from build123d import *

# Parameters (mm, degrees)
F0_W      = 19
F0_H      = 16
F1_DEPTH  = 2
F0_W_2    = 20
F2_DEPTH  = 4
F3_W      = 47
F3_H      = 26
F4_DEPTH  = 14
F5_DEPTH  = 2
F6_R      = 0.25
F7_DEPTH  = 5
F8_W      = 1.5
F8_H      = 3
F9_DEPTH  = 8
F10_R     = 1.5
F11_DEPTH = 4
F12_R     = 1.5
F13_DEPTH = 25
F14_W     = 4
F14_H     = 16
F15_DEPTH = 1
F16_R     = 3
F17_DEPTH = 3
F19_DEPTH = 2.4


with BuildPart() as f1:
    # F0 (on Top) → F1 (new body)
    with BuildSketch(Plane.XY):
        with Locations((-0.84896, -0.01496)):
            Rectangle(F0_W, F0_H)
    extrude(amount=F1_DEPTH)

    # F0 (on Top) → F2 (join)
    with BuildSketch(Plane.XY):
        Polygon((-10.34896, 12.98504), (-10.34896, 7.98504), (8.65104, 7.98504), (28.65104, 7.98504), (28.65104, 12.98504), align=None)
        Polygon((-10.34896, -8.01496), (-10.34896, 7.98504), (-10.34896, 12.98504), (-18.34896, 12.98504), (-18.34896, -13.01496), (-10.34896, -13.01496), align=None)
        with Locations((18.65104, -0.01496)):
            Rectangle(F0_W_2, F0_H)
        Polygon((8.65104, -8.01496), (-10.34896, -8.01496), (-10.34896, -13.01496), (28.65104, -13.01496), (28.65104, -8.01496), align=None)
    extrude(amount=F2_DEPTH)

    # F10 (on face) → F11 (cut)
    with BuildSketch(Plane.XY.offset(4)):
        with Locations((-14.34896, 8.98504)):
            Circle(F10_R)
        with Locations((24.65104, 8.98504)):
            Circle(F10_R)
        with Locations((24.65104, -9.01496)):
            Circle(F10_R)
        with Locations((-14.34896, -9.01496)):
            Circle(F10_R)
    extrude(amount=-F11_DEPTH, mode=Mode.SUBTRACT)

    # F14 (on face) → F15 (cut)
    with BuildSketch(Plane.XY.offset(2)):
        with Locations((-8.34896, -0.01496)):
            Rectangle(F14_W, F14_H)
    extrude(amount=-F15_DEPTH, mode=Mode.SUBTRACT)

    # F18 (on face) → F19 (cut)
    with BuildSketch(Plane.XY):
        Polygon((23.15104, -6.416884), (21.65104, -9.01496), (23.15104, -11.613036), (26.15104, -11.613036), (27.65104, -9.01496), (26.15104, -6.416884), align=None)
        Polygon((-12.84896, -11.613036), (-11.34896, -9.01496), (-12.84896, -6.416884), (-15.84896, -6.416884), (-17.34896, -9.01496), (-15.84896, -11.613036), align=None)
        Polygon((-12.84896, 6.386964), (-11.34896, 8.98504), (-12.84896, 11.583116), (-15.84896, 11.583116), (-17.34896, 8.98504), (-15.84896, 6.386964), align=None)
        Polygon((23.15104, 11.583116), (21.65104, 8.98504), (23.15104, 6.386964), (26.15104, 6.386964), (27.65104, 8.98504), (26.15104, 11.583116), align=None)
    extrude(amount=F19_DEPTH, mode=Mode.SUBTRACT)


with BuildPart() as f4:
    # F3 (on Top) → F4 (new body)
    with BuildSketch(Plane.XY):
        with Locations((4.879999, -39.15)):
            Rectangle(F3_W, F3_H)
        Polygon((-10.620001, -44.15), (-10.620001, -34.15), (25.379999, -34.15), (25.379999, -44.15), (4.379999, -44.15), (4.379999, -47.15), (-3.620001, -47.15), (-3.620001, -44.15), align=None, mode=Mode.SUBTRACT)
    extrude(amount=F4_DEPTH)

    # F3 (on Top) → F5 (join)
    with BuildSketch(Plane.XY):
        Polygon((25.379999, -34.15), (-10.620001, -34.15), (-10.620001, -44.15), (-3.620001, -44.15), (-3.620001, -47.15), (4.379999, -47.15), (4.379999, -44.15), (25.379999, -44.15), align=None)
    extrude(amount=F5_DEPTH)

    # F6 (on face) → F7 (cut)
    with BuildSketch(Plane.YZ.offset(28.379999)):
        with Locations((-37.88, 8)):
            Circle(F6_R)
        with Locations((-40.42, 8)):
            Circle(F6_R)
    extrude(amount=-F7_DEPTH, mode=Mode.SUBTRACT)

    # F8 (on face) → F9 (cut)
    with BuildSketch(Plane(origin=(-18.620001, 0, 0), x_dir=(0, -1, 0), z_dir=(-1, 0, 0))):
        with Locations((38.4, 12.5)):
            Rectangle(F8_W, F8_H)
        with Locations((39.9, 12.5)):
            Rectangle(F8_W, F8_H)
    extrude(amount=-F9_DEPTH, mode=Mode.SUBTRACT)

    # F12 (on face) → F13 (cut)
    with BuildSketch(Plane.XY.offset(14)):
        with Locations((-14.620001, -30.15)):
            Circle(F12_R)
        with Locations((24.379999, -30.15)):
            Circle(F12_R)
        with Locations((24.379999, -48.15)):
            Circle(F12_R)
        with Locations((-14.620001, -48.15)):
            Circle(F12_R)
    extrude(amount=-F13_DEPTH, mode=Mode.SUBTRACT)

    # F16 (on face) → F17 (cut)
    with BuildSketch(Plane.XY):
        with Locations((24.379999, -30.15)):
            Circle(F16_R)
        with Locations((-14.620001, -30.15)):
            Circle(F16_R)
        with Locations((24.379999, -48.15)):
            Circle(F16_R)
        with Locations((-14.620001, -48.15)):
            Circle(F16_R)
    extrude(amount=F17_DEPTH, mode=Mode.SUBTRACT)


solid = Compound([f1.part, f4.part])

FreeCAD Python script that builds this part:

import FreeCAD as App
import Part
import Sketcher
from FreeCAD import Vector
Q = App.Units.Quantity

doc = App.newDocument("Part")
body = doc.addObject("PartDesign::Body", "Body")

# Sketch on XY plane
sketch1 = body.newObject("Sketcher::SketchObject", "Sketch")
sketch1.AttachmentSupport = (doc.getObject("XY_Plane"), [""])
sketch1.MapMode = "FlatFace"
sketch1.addGeometry(Part.LineSegment(Vector(-10, 8, 0), Vector(-10, -8, 0)), False)
sketch1.addGeometry(Part.LineSegment(Vector(-10, -8, 0), Vector(9, -8, 0)), False)
sketch1.addGeometry(Part.LineSegment(Vector(9, -8, 0), Vector(9, 8, 0)), False)
sketch1.addGeometry(Part.LineSegment(Vector(9, 8, 0), Vector(-10, 8, 0)), False)
sketch1.addConstraint(Sketcher.Constraint("Coincident", 0, 2, 1, 1))
sketch1.addConstraint(Sketcher.Constraint("Coincident", 1, 2, 2, 1))
sketch1.addConstraint(Sketcher.Constraint("Coincident", 2, 2, 3, 1))
sketch1.addConstraint(Sketcher.Constraint("Coincident", 3, 2, 0, 1))
sketch1.addConstraint(Sketcher.Constraint("Vertical", 0))
sketch1.addConstraint(Sketcher.Constraint("Horizontal", 1))
sketch1.addConstraint(Sketcher.Constraint("Vertical", 2))
sketch1.addConstraint(Sketcher.Constraint("Horizontal", 3))
sketch1.addConstraint(Sketcher.Constraint("DistanceX", 1, 1, 1, 2, 19.0))
sketch1.addConstraint(Sketcher.Constraint("DistanceY", 0, 2, 0, 1, 16.0))
sketch1.addConstraint(Sketcher.Constraint("DistanceX", 0, 2, -1, 1, 10.34896))
sketch1.addConstraint(Sketcher.Constraint("DistanceY", 0, 2, -1, 1, 8.01496))
pad1 = body.newObject("PartDesign::Pad", "Pad")
pad1.Profile = sketch1
pad1.Length = 2

# Sketch on XY plane
sketch2 = body.newObject("Sketcher::SketchObject", "Sketch001")
sketch2.AttachmentSupport = (doc.getObject("XY_Plane"), [""])
sketch2.MapMode = "FlatFace"
sketch2.addGeometry(Part.LineSegment(Vector(29, 13, 0), Vector(-18, 13, 0)), False)
sketch2.addGeometry(Part.LineSegment(Vector(-18, 13, 0), Vector(-18, -13, 0)), False)
sketch2.addGeometry(Part.LineSegment(Vector(-18, -13, 0), Vector(29, -13, 0)), False)
sketch2.addGeometry(Part.LineSegment(Vector(29, -13, 0), Vector(29, 13, 0)), False)
sketch2.addGeometry(Part.LineSegment(Vector(-10, 8, 0), Vector(9, 8, 0)), False)
sketch2.addGeometry(Part.LineSegment(Vector(9, 8, 0), Vector(9, -8, 0)), False)
sketch2.addGeometry(Part.LineSegment(Vector(9, -8, 0), Vector(-10, -8, 0)), False)
sketch2.addGeometry(Part.LineSegment(Vector(-10, -8, 0), Vector(-10, 8, 0)), False)
sketch2.addConstraint(Sketcher.Constraint("Coincident", 0, 2, 1, 1))
sketch2.addConstraint(Sketcher.Constraint("Coincident", 1, 2, 2, 1))
sketch2.addConstraint(Sketcher.Constraint("Coincident", 2, 2, 3, 1))
sketch2.addConstraint(Sketcher.Constraint("Coincident", 3, 2, 0, 1))
sketch2.addConstraint(Sketcher.Constraint("Coincident", 4, 2, 5, 1))
sketch2.addConstraint(Sketcher.Constraint("Coincident", 5, 2, 6, 1))
sketch2.addConstraint(Sketcher.Constraint("Coincident", 6, 2, 7, 1))
sketch2.addConstraint(Sketcher.Constraint("Coincident", 7, 2, 4, 1))
sketch2.addConstraint(Sketcher.Constraint("Horizontal", 0))
sketch2.addConstraint(Sketcher.Constraint("Vertical", 1))
sketch2.addConstraint(Sketcher.Constraint("Horizontal", 2))
sketch2.addConstraint(Sketcher.Constraint("Vertical", 3))
sketch2.addConstraint(Sketcher.Constraint("Horizontal", 4))
sketch2.addConstraint(Sketcher.Constraint("Vertical", 5))
sketch2.addConstraint(Sketcher.Constraint("Horizontal", 6))
sketch2.addConstraint(Sketcher.Constraint("Vertical", 7))
sketch2.addConstraint(Sketcher.Constraint("DistanceX", 0, 2, 0, 1, 47.0))
sketch2.addConstraint(Sketcher.Constraint("DistanceX", 4, 1, 4, 2, 19.0))
sketch2.addConstraint(Sketcher.Constraint("DistanceY", 1, 2, 1, 1, 26.0))
sketch2.addConstraint(Sketcher.Constraint("DistanceY", 5, 2, 5, 1, 16.0))
sketch2.addConstraint(Sketcher.Constraint("DistanceX", 4, 2, 3, 2, 20.0))
sketch2.addConstraint(Sketcher.Constraint("DistanceY", 4, 2, 3, 2, 5.0))
sketch2.addConstraint(Sketcher.Constraint("DistanceX", 0, 2, -1, 1, 18.34896))
sketch2.addConstraint(Sketcher.Constraint("DistanceY", -1, 1, 0, 2, 12.98504))
pad2 = body.newObject("PartDesign::Pad", "Pad001")
pad2.Profile = sketch2
pad2.Length = 4

# Sketch on XY plane
sketch3 = body.newObject("Sketcher::SketchObject", "Sketch002")
sketch3.AttachmentSupport = (doc.getObject("XY_Plane"), [""])
sketch3.MapMode = "FlatFace"
sketch3.AttachmentOffset = App.Placement(Vector(0, 0, 4), App.Rotation())
sketch3.addGeometry(Part.Circle(Vector(-14.3, 9, 0), Vector(0, 0, 1), 1.5), False)
sketch3.addGeometry(Part.Circle(Vector(24.7, 9, 0), Vector(0, 0, 1), 1.5), False)
sketch3.addGeometry(Part.Circle(Vector(24.7, -9, 0), Vector(0, 0, 1), 1.5), False)
sketch3.addGeometry(Part.Circle(Vector(-14.3, -9, 0), Vector(0, 0, 1), 1.5), False)
sketch3.addConstraint(Sketcher.Constraint("Equal", 0, 1))
sketch3.addConstraint(Sketcher.Constraint("Equal", 1, 2))
sketch3.addConstraint(Sketcher.Constraint("Equal", 2, 3))
sketch3.addConstraint(Sketcher.Constraint("Horizontal", 0, 3, 1, 3))
sketch3.addConstraint(Sketcher.Constraint("Horizontal", 2, 3, 3, 3))
sketch3.addConstraint(Sketcher.Constraint("Vertical", 1, 3, 2, 3))
sketch3.addConstraint(Sketcher.Constraint("Vertical", 0, 3, 3, 3))
sketch3.addConstraint(Sketcher.Constraint("Diameter", 0, 3.0))
sketch3.addConstraint(Sketcher.Constraint("DistanceX", 0, 3, 1, 3, 39.0))
sketch3.addConstraint(Sketcher.Constraint("DistanceY", 2, 3, 1, 3, 18.0))
sketch3.addConstraint(Sketcher.Constraint("DistanceX", 0, 3, -1, 1, 14.34896))
sketch3.addConstraint(Sketcher.Constraint("DistanceY", -1, 1, 0, 3, 8.98504))
pocket1 = body.newObject("PartDesign::Pocket", "Pocket")
pocket1.Profile = sketch3
pocket1.Length = 4

# Sketch on XY plane
sketch4 = body.newObject("Sketcher::SketchObject", "Sketch003")
sketch4.AttachmentSupport = (doc.getObject("XY_Plane"), [""])
sketch4.MapMode = "FlatFace"
sketch4.AttachmentOffset = App.Placement(Vector(0, 0, 2), App.Rotation())
sketch4.addGeometry(Part.LineSegment(Vector(-10.3, 8, 0), Vector(-10.3, -8, 0)), False)
sketch4.addGeometry(Part.LineSegment(Vector(-10.3, -8, 0), Vector(-6.3, -8, 0)), False)
sketch4.addGeometry(Part.LineSegment(Vector(-6.3, -8, 0), Vector(-6.3, 8, 0)), False)
sketch4.addGeometry(Part.LineSegment(Vector(-6.3, 8, 0), Vector(-10.3, 8, 0)), False)
sketch4.addConstraint(Sketcher.Constraint("Coincident", 0, 2, 1, 1))
sketch4.addConstraint(Sketcher.Constraint("Coincident", 1, 2, 2, 1))
sketch4.addConstraint(Sketcher.Constraint("Coincident", 2, 2, 3, 1))
sketch4.addConstraint(Sketcher.Constraint("Coincident", 3, 2, 0, 1))
sketch4.addConstraint(Sketcher.Constraint("Vertical", 0))
sketch4.addConstraint(Sketcher.Constraint("Horizontal", 1))
sketch4.addConstraint(Sketcher.Constraint("Vertical", 2))
sketch4.addConstraint(Sketcher.Constraint("Horizontal", 3))
sketch4.addConstraint(Sketcher.Constraint("DistanceX", 1, 1, 1, 2, 4.0))
sketch4.addConstraint(Sketcher.Constraint("DistanceY", 0, 2, 0, 1, 16.0))
sketch4.addConstraint(Sketcher.Constraint("DistanceX", 0, 2, -1, 1, 10.34896))
sketch4.addConstraint(Sketcher.Constraint("DistanceY", 0, 2, -1, 1, 8.01496))
pocket2 = body.newObject("PartDesign::Pocket", "Pocket001")
pocket2.Profile = sketch4
pocket2.Length = 1

# Sketch on XY plane
sketch5 = body.newObject("Sketcher::SketchObject", "Sketch004")
sketch5.AttachmentSupport = (doc.getObject("XY_Plane"), [""])
sketch5.MapMode = "FlatFace"
sketch5.addGeometry(Part.LineSegment(Vector(23.2, -6.4, 0), Vector(21.7, -9, 0)), False)
sketch5.addGeometry(Part.LineSegment(Vector(21.7, -9, 0), Vector(23.2, -11.6, 0)), False)
sketch5.addGeometry(Part.LineSegment(Vector(23.2, -11.6, 0), Vector(26.2, -11.6, 0)), False)
sketch5.addGeometry(Part.LineSegment(Vector(26.2, -11.6, 0), Vector(27.7, -9, 0)), False)
sketch5.addGeometry(Part.LineSegment(Vector(27.7, -9, 0), Vector(26.2, -6.4, 0)), False)
sketch5.addGeometry(Part.LineSegment(Vector(26.2, -6.4, 0), Vector(23.2, -6.4, 0)), False)
sketch5.addGeometry(Part.LineSegment(Vector(-12.8, -11.6, 0), Vector(-11.3, -9, 0)), False)
sketch5.addGeometry(Part.LineSegment(Vector(-11.3, -9, 0), Vector(-12.8, -6.4, 0)), False)
sketch5.addGeometry(Part.LineSegment(Vector(-12.8, -6.4, 0), Vector(-15.8, -6.4, 0)), False)
sketch5.addGeometry(Part.LineSegment(Vector(-15.8, -6.4, 0), Vector(-17.3, -9, 0)), False)
sketch5.addGeometry(Part.LineSegment(Vector(-17.3, -9, 0), Vector(-15.8, -11.6, 0)), False)
sketch5.addGeometry(Part.LineSegment(Vector(-15.8, -11.6, 0), Vector(-12.8, -11.6, 0)), False)
sketch5.addGeometry(Part.LineSegment(Vector(-12.8, 6.4, 0), Vector(-11.3, 9, 0)), False)
sketch5.addGeometry(Part.LineSegment(Vector(-11.3, 9, 0), Vector(-12.8, 11.6, 0)), False)
sketch5.addGeometry(Part.LineSegment(Vector(-12.8, 11.6, 0), Vector(-15.8, 11.6, 0)), False)
sketch5.addGeometry(Part.LineSegment(Vector(-15.8, 11.6, 0), Vector(-17.3, 9, 0)), False)
sketch5.addGeometry(Part.LineSegment(Vector(-17.3, 9, 0), Vector(-15.8, 6.4, 0)), False)
sketch5.addGeometry(Part.LineSegment(Vector(-15.8, 6.4, 0), Vector(-12.8, 6.4, 0)), False)
sketch5.addGeometry(Part.LineSegment(Vector(23.2, 11.6, 0), Vector(21.7, 9, 0)), False)
sketch5.addGeometry(Part.LineSegment(Vector(21.7, 9, 0), Vector(23.2, 6.4, 0)), False)
sketch5.addGeometry(Part.LineSegment(Vector(23.2, 6.4, 0), Vector(26.2, 6.4, 0)), False)
sketch5.addGeometry(Part.LineSegment(Vector(26.2, 6.4, 0), Vector(27.7, 9, 0)), False)
sketch5.addGeometry(Part.LineSegment(Vector(27.7, 9, 0), Vector(26.2, 11.6, 0)), False)
sketch5.addGeometry(Part.LineSegment(Vector(26.2, 11.6, 0), Vector(23.2, 11.6, 0)), False)
sketch5.addConstraint(Sketcher.Constraint("Coincident", 0, 2, 1, 1))
sketch5.addConstraint(Sketcher.Constraint("Coincident", 1, 2, 2, 1))
sketch5.addConstraint(Sketcher.Constraint("Coincident", 2, 2, 3, 1))
sketch5.addConstraint(Sketcher.Constraint("Coincident", 3, 2, 4, 1))
sketch5.addConstraint(Sketcher.Constraint("Coincident", 4, 2, 5, 1))
sketch5.addConstraint(Sketcher.Constraint("Coincident", 5, 2, 0, 1))
sketch5.addConstraint(Sketcher.Constraint("Coincident", 6, 2, 7, 1))
sketch5.addConstraint(Sketcher.Constraint("Coincident", 7, 2, 8, 1))
sketch5.addConstraint(Sketcher.Constraint("Coincident", 8, 2, 9, 1))
sketch5.addConstraint(Sketcher.Constraint("Coincident", 9, 2, 10, 1))
sketch5.addConstraint(Sketcher.Constraint("Coincident", 10, 2, 11, 1))
sketch5.addConstraint(Sketcher.Constraint("Coincident", 11, 2, 6, 1))
sketch5.addConstraint(Sketcher.Constraint("Coincident", 12, 2, 13, 1))
sketch5.addConstraint(Sketcher.Constraint("Coincident", 13, 2, 14, 1))
sketch5.addConstraint(Sketcher.Constraint("Coincident", 14, 2, 15, 1))
sketch5.addConstraint(Sketcher.Constraint("Coincident", 15, 2, 16, 1))
sketch5.addConstraint(Sketcher.Constraint("Coincident", 16, 2, 17, 1))
sketch5.addConstraint(Sketcher.Constraint("Coincident", 17, 2, 12, 1))
sketch5.addConstraint(Sketcher.Constraint("Coincident", 18, 2, 19, 1))
sketch5.addConstraint(Sketcher.Constraint("Coincident", 19, 2, 20, 1))
sketch5.addConstraint(Sketcher.Constraint("Coincident", 20, 2, 21, 1))
sketch5.addConstraint(Sketcher.Constraint("Coincident", 21, 2, 22, 1))
sketch5.addConstraint(Sketcher.Constraint("Coincident", 22, 2, 23, 1))
sketch5.addConstraint(Sketcher.Constraint("Coincident", 23, 2, 18, 1))
sketch5.addConstraint(Sketcher.Constraint("Horizontal", 2))
sketch5.addConstraint(Sketcher.Constraint("Horizontal", 5))
sketch5.addConstraint(Sketcher.Constraint("Horizontal", 8))
sketch5.addConstraint(Sketcher.Constraint("Horizontal", 11))
sketch5.addConstraint(Sketcher.Constraint("Horizontal", 14))
sketch5.addConstraint(Sketcher.Constraint("Horizontal", 17))
sketch5.addConstraint(Sketcher.Constraint("Horizontal", 20))
sketch5.addConstraint(Sketcher.Constraint("Horizontal", 23))
sketch5.addConstraint(Sketcher.Constraint("Parallel", 0, 3))
sketch5.addConstraint(Sketcher.Constraint("Parallel", 1, 4))
sketch5.addConstraint(Sketcher.Constraint("Parallel", 3, 6))
sketch5.addConstraint(Sketcher.Constraint("Parallel", 4, 7))
sketch5.addConstraint(Sketcher.Constraint("Parallel", 6, 9))
sketch5.addConstraint(Sketcher.Constraint("Parallel", 7, 10))
sketch5.addConstraint(Sketcher.Constraint("Parallel", 9, 12))
sketch5.addConstraint(Sketcher.Constraint("Parallel", 10, 13))
sketch5.addConstraint(Sketcher.Constraint("Parallel", 12, 15))
sketch5.addConstraint(Sketcher.Constraint("Parallel", 13, 16))
sketch5.addConstraint(Sketcher.Constraint("Parallel", 15, 18))
sketch5.addConstraint(Sketcher.Constraint("Parallel", 16, 19))
sketch5.addConstraint(Sketcher.Constraint("Parallel", 18, 21))
sketch5.addConstraint(Sketcher.Constraint("Parallel", 19, 22))
sketch5.addConstraint(Sketcher.Constraint("Horizontal", 0, 2, 3, 2))
sketch5.addConstraint(Sketcher.Constraint("Horizontal", 3, 2, 6, 2))
sketch5.addConstraint(Sketcher.Constraint("Horizontal", 5, 2, 7, 2))
sketch5.addConstraint(Sketcher.Constraint("Horizontal", 6, 2, 9, 2))
sketch5.addConstraint(Sketcher.Constraint("Horizontal", 2, 2, 10, 2))
sketch5.addConstraint(Sketcher.Constraint("Horizontal", 12, 2, 15, 2))
sketch5.addConstraint(Sketcher.Constraint("Horizontal", 15, 2, 18, 2))
sketch5.addConstraint(Sketcher.Constraint("Horizontal", 17, 2, 19, 2))
sketch5.addConstraint(Sketcher.Constraint("Horizontal", 18, 2, 21, 2))
sketch5.addConstraint(Sketcher.Constraint("Horizontal", 14, 2, 22, 2))
sketch5.addConstraint(Sketcher.Constraint("Vertical", 2, 2, 4, 2))
sketch5.addConstraint(Sketcher.Constraint("Vertical", 1, 2, 5, 2))
sketch5.addConstraint(Sketcher.Constraint("Vertical", 6, 2, 12, 2))
sketch5.addConstraint(Sketcher.Constraint("Vertical", 11, 2, 13, 2))
sketch5.addConstraint(Sketcher.Constraint("Vertical", 10, 2, 14, 2))
sketch5.addConstraint(Sketcher.Constraint("Vertical", 14, 2, 16, 2))
sketch5.addConstraint(Sketcher.Constraint("Vertical", 0, 2, 18, 2))
sketch5.addConstraint(Sketcher.Constraint("Vertical", 4, 2, 20, 2))
sketch5.addConstraint(Sketcher.Constraint("Equal", 5, 8))
sketch5.addConstraint(Sketcher.Constraint("DistanceX", 2, 1, 2, 2, 3.0))
sketch5.addConstraint(Sketcher.Constraint("Angle", 0, Q("-120.000002 deg")))
sketch5.addConstraint(Sketcher.Constraint("Distance", 0, 3.0))
sketch5.addConstraint(Sketcher.Constraint("DistanceX", 6, 2, 0, 2, 33.0))
sketch5.addConstraint(Sketcher.Constraint("DistanceY", 6, 2, 12, 2, 18.0))
sketch5.addConstraint(Sketcher.Constraint("DistanceX", -1, 1, 0, 2, 21.65104))
sketch5.addConstraint(Sketcher.Constraint("DistanceY", 0, 2, -1, 1, 9.01496))
pocket3 = body.newObject("PartDesign::Pocket", "Pocket002")
pocket3.Profile = sketch5
pocket3.Length = 2.4
pocket3.Reversed = True
body2 = doc.addObject("PartDesign::Body", "Body001")

# Sketch on XY plane
sketch6 = body2.newObject("Sketcher::SketchObject", "Sketch005")
sketch6.AttachmentSupport = (doc.getObject("XY_Plane001"), [""])
sketch6.MapMode = "FlatFace"
sketch6.addGeometry(Part.LineSegment(Vector(-18.6, -26.1, 0), Vector(-18.6, -52.1, 0)), False)
sketch6.addGeometry(Part.LineSegment(Vector(-18.6, -52.1, 0), Vector(28.4, -52.1, 0)), False)
sketch6.addGeometry(Part.LineSegment(Vector(28.4, -52.1, 0), Vector(28.4, -26.1, 0)), False)
sketch6.addGeometry(Part.LineSegment(Vector(28.4, -26.1, 0), Vector(-18.6, -26.1, 0)), False)
sketch6.addGeometry(Part.LineSegment(Vector(-3.6, -44.1, 0), Vector(-10.6, -44.1, 0)), False)
sketch6.addGeometry(Part.LineSegment(Vector(-10.6, -44.1, 0), Vector(-10.6, -34.1, 0)), False)
sketch6.addGeometry(Part.LineSegment(Vector(-10.6, -34.1, 0), Vector(25.4, -34.1, 0)), False)
sketch6.addGeometry(Part.LineSegment(Vector(25.4, -34.1, 0), Vector(25.4, -44.1, 0)), False)
sketch6.addGeometry(Part.LineSegment(Vector(25.4, -44.1, 0), Vector(4.4, -44.1, 0)), False)
sketch6.addGeometry(Part.LineSegment(Vector(4.4, -44.1, 0), Vector(4.4, -47.1, 0)), False)
sketch6.addGeometry(Part.LineSegment(Vector(4.4, -47.1, 0), Vector(-3.6, -47.1, 0)), False)
sketch6.addGeometry(Part.LineSegment(Vector(-3.6, -47.1, 0), Vector(-3.6, -44.1, 0)), False)
sketch6.addConstraint(Sketcher.Constraint("Coincident", 0, 2, 1, 1))
sketch6.addConstraint(Sketcher.Constraint("Coincident", 1, 2, 2, 1))
sketch6.addConstraint(Sketcher.Constraint("Coincident", 2, 2, 3, 1))
sketch6.addConstraint(Sketcher.Constraint("Coincident", 3, 2, 0, 1))
sketch6.addConstraint(Sketcher.Constraint("Coincident", 4, 2, 5, 1))
sketch6.addConstraint(Sketcher.Constraint("Coincident", 5, 2, 6, 1))
sketch6.addConstraint(Sketcher.Constraint("Coincident", 6, 2, 7, 1))
sketch6.addConstraint(Sketcher.Constraint("Coincident", 7, 2, 8, 1))
sketch6.addConstraint(Sketcher.Constraint("Coincident", 8, 2, 9, 1))
sketch6.addConstraint(Sketcher.Constraint("Coincident", 9, 2, 10, 1))
sketch6.addConstraint(Sketcher.Constraint("Coincident", 10, 2, 11, 1))
sketch6.addConstraint(Sketcher.Constraint("Coincident", 11, 2, 4, 1))
sketch6.addConstraint(Sketcher.Constraint("Vertical", 0))
sketch6.addConstraint(Sketcher.Constraint("Horizontal", 1))
sketch6.addConstraint(Sketcher.Constraint("Vertical", 2))
sketch6.addConstraint(Sketcher.Constraint("Horizontal", 3))
sketch6.addConstraint(Sketcher.Constraint("Horizontal", 4))
sketch6.addConstraint(Sketcher.Constraint("Vertical", 5))
sketch6.addConstraint(Sketcher.Constraint("Horizontal", 6))
sketch6.addConstraint(Sketcher.Constraint("Vertical", 7))
sketch6.addConstraint(Sketcher.Constraint("Horizontal", 8))
sketch6.addConstraint(Sketcher.Constraint("Vertical", 9))
sketch6.addConstraint(Sketcher.Constraint("Horizontal", 10))
sketch6.addConstraint(Sketcher.Constraint("Vertical", 11))
sketch6.addConstraint(Sketcher.Constraint("Horizontal", 4, 2, 7, 2))
sketch6.addConstraint(Sketcher.Constraint("DistanceX", 1, 1, 1, 2, 47.0))
sketch6.addConstraint(Sketcher.Constraint("DistanceX", 4, 2, 4, 1, 7.0))
sketch6.addConstraint(Sketcher.Constraint("DistanceX", 6, 1, 6, 2, 36.0))
sketch6.addConstraint(Sketcher.Constraint("DistanceX", 8, 2, 8, 1, 21.0))
sketch6.addConstraint(Sketcher.Constraint("DistanceY", 0, 2, 0, 1, 26.0))
sketch6.addConstraint(Sketcher.Constraint("DistanceY", 5, 1, 5, 2, 10.0))
sketch6.addConstraint(Sketcher.Constraint("DistanceY", 9, 2, 9, 1, 3.0))
sketch6.addConstraint(Sketcher.Constraint("DistanceX", 0, 2, 4, 2, 8.0))
sketch6.addConstraint(Sketcher.Constraint("DistanceY", 0, 2, 4, 2, 8.0))
sketch6.addConstraint(Sketcher.Constraint("DistanceX", 0, 2, -1, 1, 18.620001))
sketch6.addConstraint(Sketcher.Constraint("DistanceY", 0, 2, -1, 1, 52.15))
pad3 = body2.newObject("PartDesign::Pad", "Pad002")
pad3.Profile = sketch6
pad3.Length = 14

# Sketch on XY plane
sketch7 = body2.newObject("Sketcher::SketchObject", "Sketch006")
sketch7.AttachmentSupport = (doc.getObject("XY_Plane001"), [""])
sketch7.MapMode = "FlatFace"
sketch7.addGeometry(Part.LineSegment(Vector(25.4, -34.1, 0), Vector(-10.6, -34.1, 0)), False)
sketch7.addGeometry(Part.LineSegment(Vector(-10.6, -34.1, 0), Vector(-10.6, -44.1, 0)), False)
sketch7.addGeometry(Part.LineSegment(Vector(-10.6, -44.1, 0), Vector(-3.6, -44.1, 0)), False)
sketch7.addGeometry(Part.LineSegment(Vector(-3.6, -44.1, 0), Vector(-3.6, -47.1, 0)), False)
sketch7.addGeometry(Part.LineSegment(Vector(-3.6, -47.1, 0), Vector(4.4, -47.1, 0)), False)
sketch7.addGeometry(Part.LineSegment(Vector(4.4, -47.1, 0), Vector(4.4, -44.1, 0)), False)
sketch7.addGeometry(Part.LineSegment(Vector(4.4, -44.1, 0), Vector(25.4, -44.1, 0)), False)
sketch7.addGeometry(Part.LineSegment(Vector(25.4, -44.1, 0), Vector(25.4, -34.1, 0)), False)
sketch7.addConstraint(Sketcher.Constraint("Coincident", 0, 2, 1, 1))
sketch7.addConstraint(Sketcher.Constraint("Coincident", 1, 2, 2, 1))
sketch7.addConstraint(Sketcher.Constraint("Coincident", 2, 2, 3, 1))
sketch7.addConstraint(Sketcher.Constraint("Coincident", 3, 2, 4, 1))
sketch7.addConstraint(Sketcher.Constraint("Coincident", 4, 2, 5, 1))
sketch7.addConstraint(Sketcher.Constraint("Coincident", 5, 2, 6, 1))
sketch7.addConstraint(Sketcher.Constraint("Coincident", 6, 2, 7, 1))
sketch7.addConstraint(Sketcher.Constraint("Coincident", 7, 2, 0, 1))
sketch7.addConstraint(Sketcher.Constraint("Horizontal", 0))
sketch7.addConstraint(Sketcher.Constraint("Vertical", 1))
sketch7.addConstraint(Sketcher.Constraint("Horizontal", 2))
sketch7.addConstraint(Sketcher.Constraint("Vertical", 3))
sketch7.addConstraint(Sketcher.Constraint("Horizontal", 4))
sketch7.addConstraint(Sketcher.Constraint("Vertical", 5))
sketch7.addConstraint(Sketcher.Constraint("Horizontal", 6))
sketch7.addConstraint(Sketcher.Constraint("Vertical", 7))
sketch7.addConstraint(Sketcher.Constraint("Horizontal", 2, 2, 5, 2))
sketch7.addConstraint(Sketcher.Constraint("DistanceX", 0, 2, 0, 1, 36.0))
sketch7.addConstraint(Sketcher.Constraint("DistanceX", 2, 1, 2, 2, 7.0))
sketch7.addConstraint(Sketcher.Constraint("DistanceX", 4, 1, 4, 2, 8.0))
sketch7.addConstraint(Sketcher.Constraint("DistanceY", 1, 2, 1, 1, 10.0))
sketch7.addConstraint(Sketcher.Constraint("DistanceY", 3, 2, 3, 1, 3.0))
sketch7.addConstraint(Sketcher.Constraint("DistanceX", 0, 2, -1, 1, 10.620001))
sketch7.addConstraint(Sketcher.Constraint("DistanceY", 0, 2, -1, 1, 34.15))
pad4 = body2.newObject("PartDesign::Pad", "Pad003")
pad4.Profile = sketch7
pad4.Length = 2

# Sketch on YZ plane
sketch8 = body2.newObject("Sketcher::SketchObject", "Sketch007")
sketch8.AttachmentSupport = (doc.getObject("YZ_Plane001"), [""])
sketch8.MapMode = "FlatFace"
sketch8.AttachmentOffset = App.Placement(Vector(0, 0, 28.379999), App.Rotation())
sketch8.addGeometry(Part.Circle(Vector(-37.88, 8, 0), Vector(0, 0, 1), 0.25), False)
sketch8.addGeometry(Part.Circle(Vector(-40.42, 8, 0), Vector(0, 0, 1), 0.25), False)
sketch8.addConstraint(Sketcher.Constraint("Equal", 0, 1))
sketch8.addConstraint(Sketcher.Constraint("Horizontal", 0, 3, 1, 3))
sketch8.addConstraint(Sketcher.Constraint("Diameter", 0, 0.5))
sketch8.addConstraint(Sketcher.Constraint("DistanceY", -1, 1, 0, 3, 8.0))
sketch8.addConstraint(Sketcher.Constraint("DistanceX", 0, 3, -1, 1, 37.88))
sketch8.addConstraint(Sketcher.Constraint("DistanceX", 1, 3, -1, 1, 40.42))
pocket4 = body2.newObject("PartDesign::Pocket", "Pocket003")
pocket4.Profile = sketch8
pocket4.Length = 5

# Sketch on YZ plane
sketch9 = body2.newObject("Sketcher::SketchObject", "Sketch008")
sketch9.AttachmentSupport = (doc.getObject("YZ_Plane001"), [""])
sketch9.MapMode = "FlatFace"
sketch9.AttachmentOffset = App.Placement(Vector(0, 0, -18.620001), App.Rotation())
sketch9.addGeometry(Part.LineSegment(Vector(-37.6, 14, 0), Vector(-37.6, 11, 0)), False)
sketch9.addGeometry(Part.LineSegment(Vector(-37.6, 11, 0), Vector(-40.6, 11, 0)), False)
sketch9.addGeometry(Part.LineSegment(Vector(-40.6, 11, 0), Vector(-40.6, 14, 0)), False)
sketch9.addGeometry(Part.LineSegment(Vector(-40.6, 14, 0), Vector(-37.6, 14, 0)), False)
sketch9.addConstraint(Sketcher.Constraint("Coincident", 0, 2, 1, 1))
sketch9.addConstraint(Sketcher.Constraint("Coincident", 1, 2, 2, 1))
sketch9.addConstraint(Sketcher.Constraint("Coincident", 2, 2, 3, 1))
sketch9.addConstraint(Sketcher.Constraint("Coincident", 3, 2, 0, 1))
sketch9.addConstraint(Sketcher.Constraint("Vertical", 0))
sketch9.addConstraint(Sketcher.Constraint("Horizontal", 1))
sketch9.addConstraint(Sketcher.Constraint("Vertical", 2))
sketch9.addConstraint(Sketcher.Constraint("Horizontal", 3))
sketch9.addConstraint(Sketcher.Constraint("Equal", 3, 0))
sketch9.addConstraint(Sketcher.Constraint("DistanceX", 1, 2, 1, 1, 3.0))
sketch9.addConstraint(Sketcher.Constraint("DistanceY", -1, 1, 0, 2, 11.0))
sketch9.addConstraint(Sketcher.Constraint("DistanceX", 0, 2, -1, 1, 37.65))
pocket5 = body2.newObject("PartDesign::Pocket", "Pocket004")
pocket5.Profile = sketch9
pocket5.Length = 8
pocket5.Reversed = True

# Sketch on XY plane
sketch10 = body2.newObject("Sketcher::SketchObject", "Sketch009")
sketch10.AttachmentSupport = (doc.getObject("XY_Plane001"), [""])
sketch10.MapMode = "FlatFace"
sketch10.AttachmentOffset = App.Placement(Vector(0, 0, 14), App.Rotation())
sketch10.addGeometry(Part.Circle(Vector(-14.6, -30.1, 0), Vector(0, 0, 1), 1.5), False)
sketch10.addGeometry(Part.Circle(Vector(24.4, -30.1, 0), Vector(0, 0, 1), 1.5), False)
sketch10.addGeometry(Part.Circle(Vector(24.4, -48.1, 0), Vector(0, 0, 1), 1.5), False)
sketch10.addGeometry(Part.Circle(Vector(-14.6, -48.1, 0), Vector(0, 0, 1), 1.5), False)
sketch10.addConstraint(Sketcher.Constraint("Equal", 0, 1))
sketch10.addConstraint(Sketcher.Constraint("Equal", 1, 2))
sketch10.addConstraint(Sketcher.Constraint("Equal", 2, 3))
sketch10.addConstraint(Sketcher.Constraint("Horizontal", 0, 3, 1, 3))
sketch10.addConstraint(Sketcher.Constraint("Horizontal", 2, 3, 3, 3))
sketch10.addConstraint(Sketcher.Constraint("Vertical", 1, 3, 2, 3))
sketch10.addConstraint(Sketcher.Constraint("Vertical", 0, 3, 3, 3))
sketch10.addConstraint(Sketcher.Constraint("Diameter", 0, 3.0))
sketch10.addConstraint(Sketcher.Constraint("DistanceX", 0, 3, 1, 3, 39.0))
sketch10.addConstraint(Sketcher.Constraint("DistanceY", 2, 3, 1, 3, 18.0))
sketch10.addConstraint(Sketcher.Constraint("DistanceX", 0, 3, -1, 1, 14.620001))
sketch10.addConstraint(Sketcher.Constraint("DistanceY", 0, 3, -1, 1, 30.15))
pocket6 = body2.newObject("PartDesign::Pocket", "Pocket005")
pocket6.Profile = sketch10
pocket6.Length = 25

# Sketch on XY plane
sketch11 = body2.newObject("Sketcher::SketchObject", "Sketch010")
sketch11.AttachmentSupport = (doc.getObject("XY_Plane001"), [""])
sketch11.MapMode = "FlatFace"
sketch11.addGeometry(Part.Circle(Vector(24.4, -30.1, 0), Vector(0, 0, 1), 3), False)
sketch11.addGeometry(Part.Circle(Vector(-14.6, -30.1, 0), Vector(0, 0, 1), 3), False)
sketch11.addGeometry(Part.Circle(Vector(24.4, -48.1, 0), Vector(0, 0, 1), 3), False)
sketch11.addGeometry(Part.Circle(Vector(-14.6, -48.1, 0), Vector(0, 0, 1), 3), False)
sketch11.addConstraint(Sketcher.Constraint("Equal", 0, 1))
sketch11.addConstraint(Sketcher.Constraint("Equal", 1, 2))
sketch11.addConstraint(Sketcher.Constraint("Equal", 2, 3))
sketch11.addConstraint(Sketcher.Constraint("Horizontal", 0, 3, 1, 3))
sketch11.addConstraint(Sketcher.Constraint("Horizontal", 2, 3, 3, 3))
sketch11.addConstraint(Sketcher.Constraint("Vertical", 0, 3, 2, 3))
sketch11.addConstraint(Sketcher.Constraint("Vertical", 1, 3, 3, 3))
sketch11.addConstraint(Sketcher.Constraint("Diameter", 0, 6.0))
sketch11.addConstraint(Sketcher.Constraint("DistanceX", 1, 3, 0, 3, 39.0))
sketch11.addConstraint(Sketcher.Constraint("DistanceY", 2, 3, 0, 3, 18.0))
sketch11.addConstraint(Sketcher.Constraint("DistanceX", -1, 1, 0, 3, 24.379999))
sketch11.addConstraint(Sketcher.Constraint("DistanceY", 0, 3, -1, 1, 30.15))
pocket7 = body2.newObject("PartDesign::Pocket", "Pocket006")
pocket7.Profile = sketch11
pocket7.Length = 3
pocket7.Reversed = True

doc.recompute()
